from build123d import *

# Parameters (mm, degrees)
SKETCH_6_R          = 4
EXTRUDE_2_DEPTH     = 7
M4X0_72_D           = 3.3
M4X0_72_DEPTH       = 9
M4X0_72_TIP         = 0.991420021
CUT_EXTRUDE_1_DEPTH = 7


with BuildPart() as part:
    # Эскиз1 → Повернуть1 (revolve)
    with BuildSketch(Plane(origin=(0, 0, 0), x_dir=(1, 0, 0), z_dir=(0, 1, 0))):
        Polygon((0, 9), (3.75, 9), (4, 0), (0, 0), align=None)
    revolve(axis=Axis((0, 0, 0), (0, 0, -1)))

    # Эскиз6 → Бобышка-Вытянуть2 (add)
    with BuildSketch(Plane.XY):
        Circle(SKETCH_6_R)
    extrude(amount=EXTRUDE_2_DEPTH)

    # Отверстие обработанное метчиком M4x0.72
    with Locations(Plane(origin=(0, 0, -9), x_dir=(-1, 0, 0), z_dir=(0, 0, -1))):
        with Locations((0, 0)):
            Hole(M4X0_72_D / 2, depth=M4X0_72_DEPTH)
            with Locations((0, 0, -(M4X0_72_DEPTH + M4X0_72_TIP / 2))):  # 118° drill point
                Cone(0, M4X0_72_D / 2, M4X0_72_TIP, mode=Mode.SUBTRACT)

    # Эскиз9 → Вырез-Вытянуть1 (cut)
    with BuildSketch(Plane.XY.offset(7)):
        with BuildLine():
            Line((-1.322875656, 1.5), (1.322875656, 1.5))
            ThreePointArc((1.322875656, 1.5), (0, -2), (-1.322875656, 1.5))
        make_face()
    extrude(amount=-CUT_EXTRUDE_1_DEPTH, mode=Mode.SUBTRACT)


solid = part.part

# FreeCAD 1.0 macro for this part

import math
import FreeCAD as App
import Part
import Sketcher

V = App.Vector

doc = App.newDocument("Part")
body = doc.addObject("PartDesign::Body", "Body")

# Sketch on XZ plane
sketch1 = doc.addObject("Sketcher::SketchObject", "Sketch")
body.addObject(sketch1)
sketch1.AttachmentSupport = (doc.XZ_Plane, [""])
sketch1.MapMode = "FlatFace"
sketch1.addGeometry([
    Part.LineSegment(V(3.8, -9, 0), V(0, -9, 0)),
    Part.LineSegment(V(0, -9, 0), V(0, 0, 0)),
    Part.LineSegment(V(0, 0, 0), V(4, 0, 0)),
    Part.LineSegment(V(4, 0, 0), V(3.8, -9, 0)),
], False)
sketch1.addConstraint([
    Sketcher.Constraint("Coincident", 0, 2, 1, 1),
    Sketcher.Constraint("Coincident", 1, 2, 2, 1),
    Sketcher.Constraint("Coincident", 2, 2, 3, 1),
    Sketcher.Constraint("Coincident", 3, 2, 0, 1),
    Sketcher.Constraint("Horizontal", 0),
    Sketcher.Constraint("Vertical", 1),
    Sketcher.Constraint("Horizontal", 2),
    Sketcher.Constraint("Coincident", 1, 2, -1, 1),
    Sketcher.Constraint("DistanceX", 2, 1, 2, 2, 4.0),
    Sketcher.Constraint("DistanceY", 1, 1, 1, 2, 9.0),
    Sketcher.Constraint("DistanceX", 0, 2, 0, 1, 3.75),
])
revolution = doc.addObject("PartDesign::Revolution", "Revolution")
body.addObject(revolution)
revolution.Profile = sketch1
revolution.ReferenceAxis = (sketch1, ["V_Axis"])
revolution.Angle = 360

# Sketch on XY plane
sketch2 = doc.addObject("Sketcher::SketchObject", "Sketch001")
body.addObject(sketch2)
sketch2.AttachmentSupport = (doc.XY_Plane, [""])
sketch2.MapMode = "FlatFace"
sketch2.addGeometry(Part.Circle(V(0, 0, 0), V(0, 0, 1), 4), False)
sketch2.addConstraint([
    Sketcher.Constraint("Coincident", 0, 3, -1, 1),
    Sketcher.Constraint("Diameter", 0, 8.0),
])
pad1 = doc.addObject("PartDesign::Pad", "Pad")
body.addObject(pad1)
pad1.Profile = sketch2
pad1.Length = 7

# Sketch on XY plane
sketch3 = doc.addObject("Sketcher::SketchObject", "Sketch002")
body.addObject(sketch3)
sketch3.AttachmentSupport = (doc.XY_Plane, [""])
sketch3.MapMode = "FlatFace"
sketch3.AttachmentOffset = App.Placement(V(0, 0, -9), App.Rotation())
sketch3.addGeometry(Part.Circle(V(0, 0, 0), V(0, 0, 1), 1.6), False)
sketch3.addConstraint([
    Sketcher.Constraint("Coincident", 0, 3, -1, 1),
    Sketcher.Constraint("Diameter", 0, 3.3),
])
doc.recompute()
hole = doc.addObject("PartDesign::Hole", "Hole")
body.addObject(hole)
hole.Profile = sketch3
hole.ThreadType = "None"
hole.Diameter = 3.3
hole.DepthType = "Dimension"
hole.Depth = 9
hole.DrillPoint = "Angled"
hole.DrillPointAngle = 118
hole.Reversed = True

# Sketch on XY plane
sketch4 = doc.addObject("Sketcher::SketchObject", "Sketch003")
body.addObject(sketch4)
sketch4.AttachmentSupport = (doc.XY_Plane, [""])
sketch4.MapMode = "FlatFace"
sketch4.AttachmentOffset = App.Placement(V(0, 0, 7), App.Rotation())
sketch4.addGeometry([
    Part.LineSegment(V(1.3, 1.5, 0), V(-1.3, 1.5, 0)),
    Part.ArcOfCircle(Part.Circle(V(0, 0, 0), V(0, 0, 1), 2), math.radians(131), math.radians(409)),
], False)
sketch4.addConstraint([
    Sketcher.Constraint("Coincident", 0, 1, 1, 2),
    Sketcher.Constraint("Coincident", 1, 1, 0, 2),
    Sketcher.Constraint("Horizontal", 0),
    Sketcher.Constraint("Coincident", 1, 3, -1, 1),
    Sketcher.Constraint("Radius", 1, 2.0),
    Sketcher.Constraint("DistanceY", -1, 1, 0, 1, 1.5),
])
pocket1 = doc.addObject("PartDesign::Pocket", "Pocket")
body.addObject(pocket1)
pocket1.Profile = sketch4
pocket1.Length = 7

doc.recompute()
